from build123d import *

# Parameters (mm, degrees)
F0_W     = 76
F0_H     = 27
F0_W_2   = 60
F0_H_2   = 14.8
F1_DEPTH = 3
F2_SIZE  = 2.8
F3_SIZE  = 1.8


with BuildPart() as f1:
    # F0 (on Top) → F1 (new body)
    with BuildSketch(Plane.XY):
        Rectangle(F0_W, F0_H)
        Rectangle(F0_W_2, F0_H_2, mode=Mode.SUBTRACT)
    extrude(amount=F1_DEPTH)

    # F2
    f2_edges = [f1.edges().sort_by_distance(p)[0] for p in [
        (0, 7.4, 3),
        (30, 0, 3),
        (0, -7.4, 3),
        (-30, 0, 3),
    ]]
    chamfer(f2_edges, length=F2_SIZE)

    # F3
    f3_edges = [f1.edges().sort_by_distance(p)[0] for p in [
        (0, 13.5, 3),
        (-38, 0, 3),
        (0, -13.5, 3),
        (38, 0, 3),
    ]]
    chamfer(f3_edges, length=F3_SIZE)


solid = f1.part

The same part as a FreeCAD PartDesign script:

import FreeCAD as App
import Part
import Sketcher
from FreeCAD import Vector


def edges_at(feature, points):
    """Names of the edges that pass closest to the given points."""
    edges = feature.Shape.Edges
    near = lambda p: min(range(len(edges)), key=lambda i: edges[i].distToShape(Part.Vertex(*p))[0])
    return sorted({f"Edge{near(p) + 1}" for p in points})

doc = App.newDocument("Part")
body = doc.addObject("PartDesign::Body", "Body")

sketch1 = body.newObject("Sketcher::SketchObject", "Sketch")
sketch1.AttachmentSupport = (doc.getObject("XY_Plane"), [""])
sketch1.MapMode = "FlatFace"
sketch1.addGeometry([
    Part.LineSegment(Vector(-38, 13.5, 0), Vector(-38, -13.5, 0)),
    Part.LineSegment(Vector(-38, -13.5, 0), Vector(38, -13.5, 0)),
    Part.LineSegment(Vector(38, -13.5, 0), Vector(38, 13.5, 0)),
    Part.LineSegment(Vector(38, 13.5, 0), Vector(-38, 13.5, 0)),
    Part.LineSegment(Vector(30, -7.4, 0), Vector(-30, -7.4, 0)),
    Part.LineSegment(Vector(-30, -7.4, 0), Vector(-30, 7.4, 0)),
    Part.LineSegment(Vector(-30, 7.4, 0), Vector(30, 7.4, 0)),
    Part.LineSegment(Vector(30, 7.4, 0), Vector(30, -7.4, 0)),
], False)
sketch1.addConstraint([
    Sketcher.Constraint("Coincident", 0, 2, 1, 1),
    Sketcher.Constraint("Coincident", 1, 2, 2, 1),
    Sketcher.Constraint("Coincident", 2, 2, 3, 1),
    Sketcher.Constraint("Coincident", 3, 2, 0, 1),
    Sketcher.Constraint("Coincident", 4, 2, 5, 1),
    Sketcher.Constraint("Coincident", 5, 2, 6, 1),
    Sketcher.Constraint("Coincident", 6, 2, 7, 1),
    Sketcher.Constraint("Coincident", 7, 2, 4, 1),
    Sketcher.Constraint("Vertical", 0),
    Sketcher.Constraint("Horizontal", 1),
    Sketcher.Constraint("Vertical", 2),
    Sketcher.Constraint("Horizontal", 3),
    Sketcher.Constraint("Horizontal", 4),
    Sketcher.Constraint("Vertical", 5),
    Sketcher.Constraint("Horizontal", 6),
    Sketcher.Constraint("Vertical", 7),
    Sketcher.Constraint("Symmetric", 0, 2, 2, 2, -1, 1),
    Sketcher.Constraint("Symmetric", 4, 2, 6, 2, -1, 1),
    Sketcher.Constraint("DistanceX", 1, 1, 1, 2, 76.0),
    Sketcher.Constraint("DistanceX", 4, 2, 4, 1, 60.0),
    Sketcher.Constraint("DistanceY", 0, 2, 0, 1, 27.0),
    Sketcher.Constraint("DistanceY", 5, 1, 5, 2, 14.8),
])
pad1 = body.newObject("PartDesign::Pad", "Pad")
pad1.Profile = sketch1
pad1.Length = 3
doc.recompute()

chamfer = body.newObject("PartDesign::Chamfer", "Chamfer")
chamfer.Base = (pad1, edges_at(pad1, [
    (0, 7.4, 3),
    (30, 0, 3),
    (0, -7.4, 3),
    (-30, 0, 3),
]))
chamfer.Size = 2.8
doc.recompute()

chamfer2 = body.newObject("PartDesign::Chamfer", "Chamfer001")
chamfer2.Base = (chamfer, edges_at(chamfer, [
    (0, 13.5, 3),
    (-38, 0, 3),
    (0, -13.5, 3),
    (38, 0, 3),
]))
chamfer2.Size = 1.8

doc.recompute()
